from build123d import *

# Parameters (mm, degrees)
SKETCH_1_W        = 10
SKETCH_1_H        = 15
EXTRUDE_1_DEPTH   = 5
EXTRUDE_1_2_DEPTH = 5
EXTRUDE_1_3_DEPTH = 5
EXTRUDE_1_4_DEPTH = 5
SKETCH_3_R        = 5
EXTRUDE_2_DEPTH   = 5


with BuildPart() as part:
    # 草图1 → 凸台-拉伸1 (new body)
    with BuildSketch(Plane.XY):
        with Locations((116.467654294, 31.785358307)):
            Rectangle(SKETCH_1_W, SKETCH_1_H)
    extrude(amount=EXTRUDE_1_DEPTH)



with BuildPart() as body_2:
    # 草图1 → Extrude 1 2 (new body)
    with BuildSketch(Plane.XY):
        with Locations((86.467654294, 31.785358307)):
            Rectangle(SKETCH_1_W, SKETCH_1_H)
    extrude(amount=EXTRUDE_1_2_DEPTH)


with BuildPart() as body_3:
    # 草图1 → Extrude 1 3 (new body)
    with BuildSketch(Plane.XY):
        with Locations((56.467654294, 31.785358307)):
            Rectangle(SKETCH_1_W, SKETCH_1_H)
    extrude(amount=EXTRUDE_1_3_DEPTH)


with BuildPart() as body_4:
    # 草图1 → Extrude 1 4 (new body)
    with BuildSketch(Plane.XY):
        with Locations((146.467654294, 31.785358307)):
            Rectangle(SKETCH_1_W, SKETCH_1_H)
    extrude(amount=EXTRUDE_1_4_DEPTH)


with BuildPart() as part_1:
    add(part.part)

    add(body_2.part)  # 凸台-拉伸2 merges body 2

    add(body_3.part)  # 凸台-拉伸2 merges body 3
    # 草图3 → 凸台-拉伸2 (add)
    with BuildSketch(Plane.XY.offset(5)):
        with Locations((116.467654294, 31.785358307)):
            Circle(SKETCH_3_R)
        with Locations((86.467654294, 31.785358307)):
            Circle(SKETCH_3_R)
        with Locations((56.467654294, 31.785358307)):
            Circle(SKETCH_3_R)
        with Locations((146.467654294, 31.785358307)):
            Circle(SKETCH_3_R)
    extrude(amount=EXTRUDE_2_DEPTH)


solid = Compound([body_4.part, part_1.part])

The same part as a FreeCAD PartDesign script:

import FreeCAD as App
import Part
import Sketcher

V = App.Vector

doc = App.newDocument("Part")
body = doc.addObject("PartDesign::Body", "Body")

sketch1 = body.newObject("Sketcher::SketchObject", "Sketch")
sketch1.AttachmentSupport = (doc.getObject("XY_Plane"), [""])
sketch1.MapMode = "FlatFace"
sketch1.addGeometry([
    Part.LineSegment(V(111, 39, 0), V(111, 24, 0)),
    Part.LineSegment(V(111, 24, 0), V(121, 24, 0)),
    Part.LineSegment(V(121, 24, 0), V(121, 39, 0)),
    Part.LineSegment(V(121, 39, 0), V(111, 39, 0)),
], False)
sketch1.addConstraint([
    Sketcher.Constraint("Coincident", 0, 2, 1, 1),
    Sketcher.Constraint("Coincident", 1, 2, 2, 1),
    Sketcher.Constraint("Coincident", 2, 2, 3, 1),
    Sketcher.Constraint("Coincident", 3, 2, 0, 1),
    Sketcher.Constraint("Vertical", 0),
    Sketcher.Constraint("Horizontal", 1),
    Sketcher.Constraint("Vertical", 2),
    Sketcher.Constraint("Horizontal", 3),
    Sketcher.Constraint("DistanceX", 1, 1, 1, 2, 10.0),
    Sketcher.Constraint("DistanceY", 0, 2, 0, 1, 15.0),
    Sketcher.Constraint("DistanceY", -1, 1, 0, 2, 24.285358),
    Sketcher.Constraint("DistanceX", -1, 1, 0, 2, 111.467654),
])
pad1 = body.newObject("PartDesign::Pad", "Pad")
pad1.Profile = sketch1
pad1.Length = 5
body2 = doc.addObject("PartDesign::Body", "Body001")

sketch2 = body2.newObject("Sketcher::SketchObject", "Sketch001")
sketch2.AttachmentSupport = (doc.getObject("XY_Plane001"), [""])
sketch2.MapMode = "FlatFace"
sketch2.addGeometry([
    Part.LineSegment(V(81, 39, 0), V(81, 24, 0)),
    Part.LineSegment(V(81, 24, 0), V(91, 24, 0)),
    Part.LineSegment(V(91, 24, 0), V(91, 39, 0)),
    Part.LineSegment(V(91, 39, 0), V(81, 39, 0)),
], False)
sketch2.addConstraint([
    Sketcher.Constraint("Coincident", 0, 2, 1, 1),
    Sketcher.Constraint("Coincident", 1, 2, 2, 1),
    Sketcher.Constraint("Coincident", 2, 2, 3, 1),
    Sketcher.Constraint("Coincident", 3, 2, 0, 1),
    Sketcher.Constraint("Vertical", 0),
    Sketcher.Constraint("Horizontal", 1),
    Sketcher.Constraint("Vertical", 2),
    Sketcher.Constraint("Horizontal", 3),
    Sketcher.Constraint("DistanceX", 1, 1, 1, 2, 10.0),
    Sketcher.Constraint("DistanceY", 0, 2, 0, 1, 15.0),
    Sketcher.Constraint("DistanceY", -1, 1, 0, 2, 24.285358),
    Sketcher.Constraint("DistanceX", -1, 1, 0, 2, 81.467654),
])
pad2 = body2.newObject("PartDesign::Pad", "Pad001")
pad2.Profile = sketch2
pad2.Length = 5
body3 = doc.addObject("PartDesign::Body", "Body002")

sketch3 = body3.newObject("Sketcher::SketchObject", "Sketch002")
sketch3.AttachmentSupport = (doc.getObject("XY_Plane002"), [""])
sketch3.MapMode = "FlatFace"
sketch3.addGeometry([
    Part.LineSegment(V(51, 39, 0), V(51, 24, 0)),
    Part.LineSegment(V(51, 24, 0), V(61, 24, 0)),
    Part.LineSegment(V(61, 24, 0), V(61, 39, 0)),
    Part.LineSegment(V(61, 39, 0), V(51, 39, 0)),
], False)
sketch3.addConstraint([
    Sketcher.Constraint("Coincident", 0, 2, 1, 1),
    Sketcher.Constraint("Coincident", 1, 2, 2, 1),
    Sketcher.Constraint("Coincident", 2, 2, 3, 1),
    Sketcher.Constraint("Coincident", 3, 2, 0, 1),
    Sketcher.Constraint("Vertical", 0),
    Sketcher.Constraint("Horizontal", 1),
    Sketcher.Constraint("Vertical", 2),
    Sketcher.Constraint("Horizontal", 3),
    Sketcher.Constraint("DistanceX", 1, 1, 1, 2, 10.0),
    Sketcher.Constraint("DistanceY", 0, 2, 0, 1, 15.0),
    Sketcher.Constraint("DistanceY", -1, 1, 0, 2, 24.285358),
    Sketcher.Constraint("DistanceX", -1, 1, 0, 2, 51.467654),
])
pad3 = body3.newObject("PartDesign::Pad", "Pad002")
pad3.Profile = sketch3
pad3.Length = 5
body4 = doc.addObject("PartDesign::Body", "Body003")

sketch4 = body4.newObject("Sketcher::SketchObject", "Sketch003")
sketch4.AttachmentSupport = (doc.getObject("XY_Plane003"), [""])
sketch4.MapMode = "FlatFace"
sketch4.addGeometry([
    Part.LineSegment(V(141, 39, 0), V(141, 24, 0)),
    Part.LineSegment(V(141, 24, 0), V(151, 24, 0)),
    Part.LineSegment(V(151, 24, 0), V(151, 39, 0)),
    Part.LineSegment(V(151, 39, 0), V(141, 39, 0)),
], False)
sketch4.addConstraint([
    Sketcher.Constraint("Coincident", 0, 2, 1, 1),
    Sketcher.Constraint("Coincident", 1, 2, 2, 1),
    Sketcher.Constraint("Coincident", 2, 2, 3, 1),
    Sketcher.Constraint("Coincident", 3, 2, 0, 1),
    Sketcher.Constraint("Vertical", 0),
    Sketcher.Constraint("Horizontal", 1),
    Sketcher.Constraint("Vertical", 2),
    Sketcher.Constraint("Horizontal", 3),
    Sketcher.Constraint("DistanceX", 1, 1, 1, 2, 10.0),
    Sketcher.Constraint("DistanceY", 0, 2, 0, 1, 15.0),
    Sketcher.Constraint("DistanceY", -1, 1, 0, 2, 24.285358),
    Sketcher.Constraint("DistanceX", -1, 1, 0, 2, 141.467654),
])
pad4 = body4.newObject("PartDesign::Pad", "Pad003")
pad4.Profile = sketch4
pad4.Length = 5
body.AllowCompound = True
doc.recompute()

boolean = body.newObject("PartDesign::Boolean", "Boolean")
boolean.Type = "Fuse"
boolean.addObjects([body2])
doc.recompute()

boolean2 = body.newObject("PartDesign::Boolean", "Boolean001")
boolean2.Type = "Fuse"
boolean2.addObjects([body3])

sketch5 = body.newObject("Sketcher::SketchObject", "Sketch004")
sketch5.AttachmentSupport = (doc.getObject("XY_Plane"), [""])
sketch5.MapMode = "FlatFace"
sketch5.AttachmentOffset = App.Placement(V(0, 0, 5), App.Rotation())
sketch5.addGeometry([
    Part.Circle(V(116, 32, 0), V(0, 0, 1), 5),
    Part.Circle(V(86, 32, 0), V(0, 0, 1), 5),
    Part.Circle(V(56, 32, 0), V(0, 0, 1), 5),
    Part.Circle(V(146, 32, 0), V(0, 0, 1), 5),
], False)
sketch5.addConstraint([
    Sketcher.Constraint("Equal", 0, 1),
    Sketcher.Constraint("Equal", 1, 2),
    Sketcher.Constraint("Equal", 2, 3),
    Sketcher.Constraint("Horizontal", 0, 3, 1, 3),
    Sketcher.Constraint("Horizontal", 1, 3, 2, 3),
    Sketcher.Constraint("Horizontal", 2, 3, 3, 3),
    Sketcher.Constraint("Diameter", 0, 10.0),
    Sketcher.Constraint("DistanceX", 1, 3, 0, 3, 30.0),
    Sketcher.Constraint("DistanceX", 2, 3, 1, 3, 30.0),
    Sketcher.Constraint("DistanceX", 0, 3, 3, 3, 30.0),
    Sketcher.Constraint("DistanceY", -1, 1, 0, 3, 31.785358),
    Sketcher.Constraint("DistanceX", -1, 1, 0, 3, 116.467654),
])
pad5 = body.newObject("PartDesign::Pad", "Pad004")
pad5.Profile = sketch5
pad5.Length = 5

doc.recompute()
